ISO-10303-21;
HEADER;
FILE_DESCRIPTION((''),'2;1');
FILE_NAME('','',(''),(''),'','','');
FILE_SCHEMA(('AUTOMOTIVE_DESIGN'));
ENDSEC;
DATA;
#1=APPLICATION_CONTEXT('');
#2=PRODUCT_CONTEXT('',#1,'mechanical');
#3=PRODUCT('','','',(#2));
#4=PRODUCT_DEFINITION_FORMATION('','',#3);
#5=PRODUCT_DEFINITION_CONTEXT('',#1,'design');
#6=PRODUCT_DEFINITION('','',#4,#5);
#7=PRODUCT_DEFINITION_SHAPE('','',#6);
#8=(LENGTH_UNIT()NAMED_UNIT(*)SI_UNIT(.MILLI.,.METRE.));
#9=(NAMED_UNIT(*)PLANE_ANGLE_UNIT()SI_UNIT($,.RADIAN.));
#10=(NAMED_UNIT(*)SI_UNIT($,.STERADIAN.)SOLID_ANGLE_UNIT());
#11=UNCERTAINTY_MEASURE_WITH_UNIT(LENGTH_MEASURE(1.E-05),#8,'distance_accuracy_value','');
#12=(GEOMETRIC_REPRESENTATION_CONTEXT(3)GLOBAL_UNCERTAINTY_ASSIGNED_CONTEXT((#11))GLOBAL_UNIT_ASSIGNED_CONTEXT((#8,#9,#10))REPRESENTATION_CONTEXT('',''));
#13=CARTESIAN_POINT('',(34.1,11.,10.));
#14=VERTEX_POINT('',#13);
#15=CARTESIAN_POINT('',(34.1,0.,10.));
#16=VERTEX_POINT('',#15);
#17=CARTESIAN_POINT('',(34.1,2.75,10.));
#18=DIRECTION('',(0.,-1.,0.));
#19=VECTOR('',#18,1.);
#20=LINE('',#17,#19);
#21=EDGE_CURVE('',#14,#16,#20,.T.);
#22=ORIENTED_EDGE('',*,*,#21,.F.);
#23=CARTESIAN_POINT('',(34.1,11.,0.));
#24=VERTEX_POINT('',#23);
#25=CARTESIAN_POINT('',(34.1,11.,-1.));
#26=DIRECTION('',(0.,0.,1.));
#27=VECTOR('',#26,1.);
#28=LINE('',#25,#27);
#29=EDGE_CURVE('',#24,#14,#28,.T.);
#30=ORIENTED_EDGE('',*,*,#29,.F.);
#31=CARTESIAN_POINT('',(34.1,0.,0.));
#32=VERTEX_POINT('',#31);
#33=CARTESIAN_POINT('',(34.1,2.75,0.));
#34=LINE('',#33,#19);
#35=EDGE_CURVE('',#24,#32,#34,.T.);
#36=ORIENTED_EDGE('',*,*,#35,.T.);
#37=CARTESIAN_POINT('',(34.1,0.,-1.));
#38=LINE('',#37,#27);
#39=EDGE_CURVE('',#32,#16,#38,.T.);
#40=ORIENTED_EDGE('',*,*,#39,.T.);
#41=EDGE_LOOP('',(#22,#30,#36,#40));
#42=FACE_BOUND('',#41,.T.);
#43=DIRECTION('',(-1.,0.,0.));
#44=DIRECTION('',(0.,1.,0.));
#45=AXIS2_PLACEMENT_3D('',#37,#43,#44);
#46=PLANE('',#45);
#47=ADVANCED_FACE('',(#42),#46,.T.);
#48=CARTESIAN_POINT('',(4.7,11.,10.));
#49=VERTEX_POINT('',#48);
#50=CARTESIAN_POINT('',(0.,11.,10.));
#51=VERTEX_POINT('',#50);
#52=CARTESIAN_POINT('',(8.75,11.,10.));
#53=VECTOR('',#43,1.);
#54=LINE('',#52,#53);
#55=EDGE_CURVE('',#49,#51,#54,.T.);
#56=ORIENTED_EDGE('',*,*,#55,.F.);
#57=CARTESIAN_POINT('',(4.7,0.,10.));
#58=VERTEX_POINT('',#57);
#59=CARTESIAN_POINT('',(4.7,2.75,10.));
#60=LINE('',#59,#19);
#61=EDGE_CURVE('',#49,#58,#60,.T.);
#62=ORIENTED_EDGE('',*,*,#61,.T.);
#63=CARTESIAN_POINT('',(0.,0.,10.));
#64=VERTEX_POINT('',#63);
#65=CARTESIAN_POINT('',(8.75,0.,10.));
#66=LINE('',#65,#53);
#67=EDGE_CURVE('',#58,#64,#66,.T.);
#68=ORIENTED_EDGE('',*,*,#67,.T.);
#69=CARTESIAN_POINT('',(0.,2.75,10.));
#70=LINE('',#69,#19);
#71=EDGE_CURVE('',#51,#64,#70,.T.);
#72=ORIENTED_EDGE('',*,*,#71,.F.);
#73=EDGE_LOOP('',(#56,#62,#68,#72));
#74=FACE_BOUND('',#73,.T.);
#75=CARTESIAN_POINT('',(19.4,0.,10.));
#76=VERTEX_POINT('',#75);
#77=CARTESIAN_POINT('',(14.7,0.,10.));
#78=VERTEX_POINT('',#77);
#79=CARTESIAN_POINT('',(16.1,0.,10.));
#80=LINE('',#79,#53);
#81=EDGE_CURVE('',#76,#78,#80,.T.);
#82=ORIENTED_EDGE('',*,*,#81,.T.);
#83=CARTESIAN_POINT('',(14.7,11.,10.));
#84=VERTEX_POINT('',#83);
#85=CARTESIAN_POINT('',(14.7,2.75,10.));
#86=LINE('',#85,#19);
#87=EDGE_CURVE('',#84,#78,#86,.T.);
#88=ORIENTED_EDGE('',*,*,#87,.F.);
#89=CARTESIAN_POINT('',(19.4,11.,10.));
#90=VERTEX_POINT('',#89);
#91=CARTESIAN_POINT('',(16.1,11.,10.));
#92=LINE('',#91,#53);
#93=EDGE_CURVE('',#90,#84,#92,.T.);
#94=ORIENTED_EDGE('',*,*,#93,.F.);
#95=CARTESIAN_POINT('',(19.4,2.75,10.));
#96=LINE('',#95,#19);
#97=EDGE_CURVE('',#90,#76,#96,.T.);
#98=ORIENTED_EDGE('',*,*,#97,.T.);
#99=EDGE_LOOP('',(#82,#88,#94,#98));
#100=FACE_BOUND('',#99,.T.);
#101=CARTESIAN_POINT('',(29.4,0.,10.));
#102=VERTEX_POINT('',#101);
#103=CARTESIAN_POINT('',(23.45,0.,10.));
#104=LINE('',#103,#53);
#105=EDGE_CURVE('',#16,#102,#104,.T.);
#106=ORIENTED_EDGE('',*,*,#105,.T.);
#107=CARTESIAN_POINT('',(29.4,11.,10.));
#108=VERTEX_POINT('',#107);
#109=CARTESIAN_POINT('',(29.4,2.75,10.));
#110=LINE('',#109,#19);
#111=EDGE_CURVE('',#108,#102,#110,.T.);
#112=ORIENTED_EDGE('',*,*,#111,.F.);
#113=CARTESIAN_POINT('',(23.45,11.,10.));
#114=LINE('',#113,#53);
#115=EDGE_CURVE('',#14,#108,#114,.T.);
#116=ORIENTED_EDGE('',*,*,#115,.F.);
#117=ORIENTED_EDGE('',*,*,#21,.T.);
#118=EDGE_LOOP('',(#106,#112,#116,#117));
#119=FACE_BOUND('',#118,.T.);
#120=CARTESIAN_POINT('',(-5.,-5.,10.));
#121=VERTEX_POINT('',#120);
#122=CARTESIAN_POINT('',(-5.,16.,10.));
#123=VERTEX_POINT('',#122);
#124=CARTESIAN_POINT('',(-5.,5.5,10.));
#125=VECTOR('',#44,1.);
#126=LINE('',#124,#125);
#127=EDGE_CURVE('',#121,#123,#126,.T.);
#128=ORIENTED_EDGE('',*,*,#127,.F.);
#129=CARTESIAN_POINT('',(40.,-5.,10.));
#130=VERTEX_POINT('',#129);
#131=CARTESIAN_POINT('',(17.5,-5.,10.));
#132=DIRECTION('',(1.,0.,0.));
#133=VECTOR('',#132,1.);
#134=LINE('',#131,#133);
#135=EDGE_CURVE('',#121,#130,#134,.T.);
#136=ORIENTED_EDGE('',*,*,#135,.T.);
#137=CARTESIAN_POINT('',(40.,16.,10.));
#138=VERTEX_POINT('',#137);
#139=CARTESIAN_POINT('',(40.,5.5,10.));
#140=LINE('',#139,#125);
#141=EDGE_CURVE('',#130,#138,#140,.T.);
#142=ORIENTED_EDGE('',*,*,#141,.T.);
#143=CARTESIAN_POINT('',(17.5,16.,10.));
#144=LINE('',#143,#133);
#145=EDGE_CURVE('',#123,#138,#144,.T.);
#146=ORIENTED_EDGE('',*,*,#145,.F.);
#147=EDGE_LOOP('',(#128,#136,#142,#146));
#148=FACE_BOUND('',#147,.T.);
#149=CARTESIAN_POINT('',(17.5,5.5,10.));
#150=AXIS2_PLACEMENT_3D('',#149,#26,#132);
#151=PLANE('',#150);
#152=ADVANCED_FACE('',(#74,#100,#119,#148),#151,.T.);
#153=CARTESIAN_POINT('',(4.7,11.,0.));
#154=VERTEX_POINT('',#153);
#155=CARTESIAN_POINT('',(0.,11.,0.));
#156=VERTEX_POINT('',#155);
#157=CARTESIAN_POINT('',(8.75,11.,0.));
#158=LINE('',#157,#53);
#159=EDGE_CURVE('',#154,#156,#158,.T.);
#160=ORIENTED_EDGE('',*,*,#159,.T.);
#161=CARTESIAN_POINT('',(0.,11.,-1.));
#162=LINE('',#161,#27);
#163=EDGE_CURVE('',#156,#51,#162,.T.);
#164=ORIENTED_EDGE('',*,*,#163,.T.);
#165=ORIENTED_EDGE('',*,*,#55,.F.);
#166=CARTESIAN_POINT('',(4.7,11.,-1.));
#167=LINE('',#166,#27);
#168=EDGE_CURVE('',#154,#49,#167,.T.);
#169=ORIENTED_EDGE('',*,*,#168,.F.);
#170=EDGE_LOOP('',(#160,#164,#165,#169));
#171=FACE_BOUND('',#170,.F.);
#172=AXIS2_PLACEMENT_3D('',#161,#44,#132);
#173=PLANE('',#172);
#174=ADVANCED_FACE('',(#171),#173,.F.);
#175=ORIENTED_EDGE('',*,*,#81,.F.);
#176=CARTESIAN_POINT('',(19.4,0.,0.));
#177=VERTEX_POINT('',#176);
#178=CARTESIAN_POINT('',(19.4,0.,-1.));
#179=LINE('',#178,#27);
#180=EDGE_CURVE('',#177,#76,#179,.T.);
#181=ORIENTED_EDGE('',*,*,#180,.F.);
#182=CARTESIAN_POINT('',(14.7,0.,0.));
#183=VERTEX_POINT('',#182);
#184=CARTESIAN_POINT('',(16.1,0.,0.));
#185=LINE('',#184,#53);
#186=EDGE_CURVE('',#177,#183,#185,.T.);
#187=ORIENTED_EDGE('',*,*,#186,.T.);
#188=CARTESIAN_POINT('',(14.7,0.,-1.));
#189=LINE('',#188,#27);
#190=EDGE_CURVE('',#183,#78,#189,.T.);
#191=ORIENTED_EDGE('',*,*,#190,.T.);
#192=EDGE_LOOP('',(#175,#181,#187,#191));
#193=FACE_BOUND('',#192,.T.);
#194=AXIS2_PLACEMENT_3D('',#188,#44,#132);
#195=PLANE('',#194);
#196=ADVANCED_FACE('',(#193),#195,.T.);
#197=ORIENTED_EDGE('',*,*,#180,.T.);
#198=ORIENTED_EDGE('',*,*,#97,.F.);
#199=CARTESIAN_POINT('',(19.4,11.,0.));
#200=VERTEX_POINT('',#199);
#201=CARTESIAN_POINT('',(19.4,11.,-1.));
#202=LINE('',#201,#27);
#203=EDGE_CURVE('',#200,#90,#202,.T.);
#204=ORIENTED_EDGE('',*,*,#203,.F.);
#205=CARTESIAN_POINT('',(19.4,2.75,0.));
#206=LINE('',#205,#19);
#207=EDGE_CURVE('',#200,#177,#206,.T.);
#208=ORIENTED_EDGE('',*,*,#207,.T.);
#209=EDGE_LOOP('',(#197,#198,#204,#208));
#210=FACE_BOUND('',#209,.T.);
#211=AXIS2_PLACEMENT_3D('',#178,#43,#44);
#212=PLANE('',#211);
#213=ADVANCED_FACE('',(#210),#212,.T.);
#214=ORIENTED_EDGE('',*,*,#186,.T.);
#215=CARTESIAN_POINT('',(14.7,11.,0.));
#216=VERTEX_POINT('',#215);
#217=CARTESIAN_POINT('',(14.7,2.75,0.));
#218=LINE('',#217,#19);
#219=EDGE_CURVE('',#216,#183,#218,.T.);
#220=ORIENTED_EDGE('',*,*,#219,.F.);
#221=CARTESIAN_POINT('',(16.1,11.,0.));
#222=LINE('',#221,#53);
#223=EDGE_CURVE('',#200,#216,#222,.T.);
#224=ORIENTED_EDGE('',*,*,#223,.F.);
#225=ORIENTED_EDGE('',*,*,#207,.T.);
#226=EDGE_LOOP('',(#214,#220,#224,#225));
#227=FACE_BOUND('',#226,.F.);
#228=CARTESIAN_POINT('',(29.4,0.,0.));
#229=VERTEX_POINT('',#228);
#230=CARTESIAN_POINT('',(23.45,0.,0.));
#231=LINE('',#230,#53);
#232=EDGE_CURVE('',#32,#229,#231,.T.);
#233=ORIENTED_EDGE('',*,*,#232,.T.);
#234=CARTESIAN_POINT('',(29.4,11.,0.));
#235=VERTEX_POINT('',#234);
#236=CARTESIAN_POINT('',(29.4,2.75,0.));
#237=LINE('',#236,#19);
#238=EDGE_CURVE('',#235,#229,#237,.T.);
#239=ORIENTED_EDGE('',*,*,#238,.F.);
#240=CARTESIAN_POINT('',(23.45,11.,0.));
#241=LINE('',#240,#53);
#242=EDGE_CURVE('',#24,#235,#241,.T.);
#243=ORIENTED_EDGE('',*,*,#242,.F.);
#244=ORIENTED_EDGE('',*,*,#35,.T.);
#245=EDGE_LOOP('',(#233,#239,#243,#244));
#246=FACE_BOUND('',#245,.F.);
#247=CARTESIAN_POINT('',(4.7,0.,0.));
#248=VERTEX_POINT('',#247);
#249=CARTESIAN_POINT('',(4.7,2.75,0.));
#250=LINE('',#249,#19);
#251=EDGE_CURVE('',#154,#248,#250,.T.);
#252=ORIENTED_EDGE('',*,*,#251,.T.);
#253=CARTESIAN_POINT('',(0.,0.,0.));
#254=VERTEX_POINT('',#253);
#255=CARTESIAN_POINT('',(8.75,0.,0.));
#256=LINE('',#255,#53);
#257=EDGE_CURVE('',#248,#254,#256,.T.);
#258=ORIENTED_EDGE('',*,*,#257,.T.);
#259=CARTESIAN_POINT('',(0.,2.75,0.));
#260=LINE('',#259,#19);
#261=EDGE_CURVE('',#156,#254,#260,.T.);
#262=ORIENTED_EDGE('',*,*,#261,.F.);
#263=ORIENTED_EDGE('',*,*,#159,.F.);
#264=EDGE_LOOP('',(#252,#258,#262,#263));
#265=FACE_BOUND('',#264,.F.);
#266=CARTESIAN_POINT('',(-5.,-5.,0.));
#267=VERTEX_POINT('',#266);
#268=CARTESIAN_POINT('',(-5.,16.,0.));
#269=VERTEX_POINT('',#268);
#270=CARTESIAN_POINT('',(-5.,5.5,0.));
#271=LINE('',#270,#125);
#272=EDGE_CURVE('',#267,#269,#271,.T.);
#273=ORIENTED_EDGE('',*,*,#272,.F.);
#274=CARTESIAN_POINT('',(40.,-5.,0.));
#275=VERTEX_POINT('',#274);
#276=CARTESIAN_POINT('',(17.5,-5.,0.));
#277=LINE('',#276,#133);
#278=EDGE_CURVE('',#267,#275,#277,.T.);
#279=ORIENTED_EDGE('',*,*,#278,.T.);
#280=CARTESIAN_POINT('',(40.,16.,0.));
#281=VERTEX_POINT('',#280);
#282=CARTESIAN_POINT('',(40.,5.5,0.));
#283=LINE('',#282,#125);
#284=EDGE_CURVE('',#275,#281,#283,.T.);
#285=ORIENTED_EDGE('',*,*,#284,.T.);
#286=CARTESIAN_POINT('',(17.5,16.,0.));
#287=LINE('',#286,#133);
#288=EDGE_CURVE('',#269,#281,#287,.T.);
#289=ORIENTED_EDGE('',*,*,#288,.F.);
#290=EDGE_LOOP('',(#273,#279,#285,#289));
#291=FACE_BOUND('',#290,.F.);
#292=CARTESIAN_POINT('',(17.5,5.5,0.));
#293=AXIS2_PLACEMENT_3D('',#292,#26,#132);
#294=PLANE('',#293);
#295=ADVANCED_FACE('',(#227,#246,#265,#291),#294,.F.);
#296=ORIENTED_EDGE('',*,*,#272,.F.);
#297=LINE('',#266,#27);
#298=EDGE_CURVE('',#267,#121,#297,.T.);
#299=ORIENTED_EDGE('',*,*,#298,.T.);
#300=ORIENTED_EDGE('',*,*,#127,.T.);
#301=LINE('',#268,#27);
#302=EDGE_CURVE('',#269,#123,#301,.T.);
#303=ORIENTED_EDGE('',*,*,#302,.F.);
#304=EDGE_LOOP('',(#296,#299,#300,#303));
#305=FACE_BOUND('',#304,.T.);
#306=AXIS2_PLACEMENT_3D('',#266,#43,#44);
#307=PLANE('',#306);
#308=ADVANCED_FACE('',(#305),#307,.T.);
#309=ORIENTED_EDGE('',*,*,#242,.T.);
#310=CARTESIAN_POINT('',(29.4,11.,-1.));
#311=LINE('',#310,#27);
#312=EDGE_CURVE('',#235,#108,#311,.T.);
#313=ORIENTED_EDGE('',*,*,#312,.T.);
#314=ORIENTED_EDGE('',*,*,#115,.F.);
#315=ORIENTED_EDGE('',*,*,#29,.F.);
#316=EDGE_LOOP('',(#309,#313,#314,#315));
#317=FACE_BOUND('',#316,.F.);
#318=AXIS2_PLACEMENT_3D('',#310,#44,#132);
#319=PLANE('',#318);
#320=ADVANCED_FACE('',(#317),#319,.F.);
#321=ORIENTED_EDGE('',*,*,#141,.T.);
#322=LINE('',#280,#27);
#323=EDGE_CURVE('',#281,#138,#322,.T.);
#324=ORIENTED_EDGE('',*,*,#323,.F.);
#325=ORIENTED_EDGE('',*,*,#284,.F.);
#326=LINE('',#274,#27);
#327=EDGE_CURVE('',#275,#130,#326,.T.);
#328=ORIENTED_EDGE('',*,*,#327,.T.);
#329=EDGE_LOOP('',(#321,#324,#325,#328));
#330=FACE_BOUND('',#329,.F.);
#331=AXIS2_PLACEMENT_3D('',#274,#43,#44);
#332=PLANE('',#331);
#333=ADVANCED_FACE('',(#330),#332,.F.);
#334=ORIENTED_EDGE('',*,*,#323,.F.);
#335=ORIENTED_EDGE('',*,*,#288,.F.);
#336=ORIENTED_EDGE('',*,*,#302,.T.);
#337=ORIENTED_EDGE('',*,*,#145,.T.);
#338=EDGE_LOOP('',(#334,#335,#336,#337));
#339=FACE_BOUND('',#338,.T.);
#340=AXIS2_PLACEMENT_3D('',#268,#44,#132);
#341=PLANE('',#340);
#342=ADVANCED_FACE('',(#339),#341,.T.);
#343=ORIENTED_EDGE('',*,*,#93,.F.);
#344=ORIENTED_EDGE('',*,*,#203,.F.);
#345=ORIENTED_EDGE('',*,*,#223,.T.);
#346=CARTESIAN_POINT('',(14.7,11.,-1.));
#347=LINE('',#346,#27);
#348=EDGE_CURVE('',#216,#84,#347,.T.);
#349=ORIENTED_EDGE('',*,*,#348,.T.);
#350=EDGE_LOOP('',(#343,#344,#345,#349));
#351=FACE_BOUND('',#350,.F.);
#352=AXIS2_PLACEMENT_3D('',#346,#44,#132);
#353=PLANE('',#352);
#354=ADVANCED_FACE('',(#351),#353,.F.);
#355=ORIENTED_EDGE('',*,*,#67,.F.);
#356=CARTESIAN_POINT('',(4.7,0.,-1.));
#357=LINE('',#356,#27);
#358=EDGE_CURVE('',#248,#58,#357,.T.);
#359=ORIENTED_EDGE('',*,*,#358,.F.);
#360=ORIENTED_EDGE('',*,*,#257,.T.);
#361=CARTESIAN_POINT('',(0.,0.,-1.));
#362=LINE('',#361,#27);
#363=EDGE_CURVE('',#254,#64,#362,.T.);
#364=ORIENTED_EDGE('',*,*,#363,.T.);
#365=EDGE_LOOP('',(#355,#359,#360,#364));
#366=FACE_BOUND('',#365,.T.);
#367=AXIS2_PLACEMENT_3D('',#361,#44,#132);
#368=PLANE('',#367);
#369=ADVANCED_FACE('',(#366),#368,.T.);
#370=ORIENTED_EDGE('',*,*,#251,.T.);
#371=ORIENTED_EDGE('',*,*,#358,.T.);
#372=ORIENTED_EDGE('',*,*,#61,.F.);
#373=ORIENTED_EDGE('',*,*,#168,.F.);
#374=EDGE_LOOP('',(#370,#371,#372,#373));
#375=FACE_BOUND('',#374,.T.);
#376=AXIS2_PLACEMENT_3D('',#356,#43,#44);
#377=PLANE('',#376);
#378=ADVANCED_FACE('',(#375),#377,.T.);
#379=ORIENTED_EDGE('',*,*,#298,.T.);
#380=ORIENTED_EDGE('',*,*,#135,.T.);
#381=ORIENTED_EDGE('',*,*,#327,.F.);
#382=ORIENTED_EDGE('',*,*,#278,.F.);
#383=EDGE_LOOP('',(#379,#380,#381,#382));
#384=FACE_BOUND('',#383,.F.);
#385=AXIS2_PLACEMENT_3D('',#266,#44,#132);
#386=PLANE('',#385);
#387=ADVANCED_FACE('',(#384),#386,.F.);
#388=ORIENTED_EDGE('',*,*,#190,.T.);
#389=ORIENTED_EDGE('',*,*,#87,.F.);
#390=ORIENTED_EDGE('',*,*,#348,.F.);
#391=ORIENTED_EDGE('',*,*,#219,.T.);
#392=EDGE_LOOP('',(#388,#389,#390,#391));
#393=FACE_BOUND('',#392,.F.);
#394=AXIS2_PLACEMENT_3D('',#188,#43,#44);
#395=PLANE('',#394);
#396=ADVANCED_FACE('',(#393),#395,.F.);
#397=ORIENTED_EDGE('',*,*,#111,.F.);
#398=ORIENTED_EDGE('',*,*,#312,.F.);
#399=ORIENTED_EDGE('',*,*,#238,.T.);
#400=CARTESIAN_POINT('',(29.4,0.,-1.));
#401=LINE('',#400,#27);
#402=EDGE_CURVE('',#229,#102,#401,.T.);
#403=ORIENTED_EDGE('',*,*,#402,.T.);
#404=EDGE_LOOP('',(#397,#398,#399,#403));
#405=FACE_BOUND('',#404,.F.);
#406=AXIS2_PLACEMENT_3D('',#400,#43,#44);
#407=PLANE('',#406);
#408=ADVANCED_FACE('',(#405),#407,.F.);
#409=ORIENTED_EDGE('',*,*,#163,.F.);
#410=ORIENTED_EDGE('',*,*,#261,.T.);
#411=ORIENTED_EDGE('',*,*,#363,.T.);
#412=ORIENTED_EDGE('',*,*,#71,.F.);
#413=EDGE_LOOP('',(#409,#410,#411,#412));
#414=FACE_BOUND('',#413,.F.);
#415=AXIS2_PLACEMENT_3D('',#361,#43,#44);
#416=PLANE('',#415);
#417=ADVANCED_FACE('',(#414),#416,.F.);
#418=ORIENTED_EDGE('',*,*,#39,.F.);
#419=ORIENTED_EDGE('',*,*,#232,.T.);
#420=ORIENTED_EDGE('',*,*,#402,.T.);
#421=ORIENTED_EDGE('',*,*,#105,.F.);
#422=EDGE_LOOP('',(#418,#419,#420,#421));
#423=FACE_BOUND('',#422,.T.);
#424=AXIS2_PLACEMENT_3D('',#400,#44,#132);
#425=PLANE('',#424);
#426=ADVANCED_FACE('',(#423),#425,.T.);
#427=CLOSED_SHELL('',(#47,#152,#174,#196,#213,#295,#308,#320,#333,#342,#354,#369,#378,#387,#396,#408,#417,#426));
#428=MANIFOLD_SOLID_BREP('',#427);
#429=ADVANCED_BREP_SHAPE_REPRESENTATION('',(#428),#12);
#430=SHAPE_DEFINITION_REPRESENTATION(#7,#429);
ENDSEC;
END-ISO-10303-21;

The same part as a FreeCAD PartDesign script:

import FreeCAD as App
import Part
import Sketcher

doc = App.newDocument("Part")
body = doc.addObject("PartDesign::Body", "Body")

sketch1 = body.newObject("Sketcher::SketchObject", "Sketch")
sketch1.AttachmentSupport = (doc.getObject("XY_Plane"), [""])
sketch1.MapMode = "FlatFace"
sketch1.AttachmentOffset = App.Placement(App.Vector(0, 0, -1), App.Rotation())
sketch1.addGeometry([
    Part.LineSegment(App.Vector(0, 11, 0), App.Vector(0, 0, 0)),
    Part.LineSegment(App.Vector(0, 0, 0), App.Vector(4.7, 0, 0)),
    Part.LineSegment(App.Vector(4.7, 0, 0), App.Vector(4.7, 11, 0)),
    Part.LineSegment(App.Vector(4.7, 11, 0), App.Vector(0, 11, 0)),
], False)
sketch1.addConstraint([
    Sketcher.Constraint("Coincident", 0, 2, 1, 1),
    Sketcher.Constraint("Coincident", 1, 2, 2, 1),
    Sketcher.Constraint("Coincident", 2, 2, 3, 1),
    Sketcher.Constraint("Coincident", 3, 2, 0, 1),
    Sketcher.Constraint("Vertical", 0),
    Sketcher.Constraint("Horizontal", 1),
    Sketcher.Constraint("Vertical", 2),
    Sketcher.Constraint("Horizontal", 3),
    Sketcher.Constraint("Coincident", 0, 2, -1, 1),
    Sketcher.Constraint("DistanceY", 0, 2, 0, 1, 11.0),
    Sketcher.Constraint("DistanceX", 1, 1, 1, 2, 4.7),
])
pad1 = body.newObject("PartDesign::Pad", "Pad")
pad1.Profile = sketch1
pad1.Length = 13
body2 = doc.addObject("PartDesign::Body", "Body001")

sketch2 = body2.newObject("Sketcher::SketchObject", "Sketch001")
sketch2.AttachmentSupport = (doc.getObject("XY_Plane001"), [""])
sketch2.MapMode = "FlatFace"
sketch2.AttachmentOffset = App.Placement(App.Vector(0, 0, -1), App.Rotation())
sketch2.addGeometry([
    Part.LineSegment(App.Vector(14.7, 11, 0), App.Vector(14.7, 0, 0)),
    Part.LineSegment(App.Vector(14.7, 0, 0), App.Vector(19.4, 0, 0)),
    Part.LineSegment(App.Vector(19.4, 0, 0), App.Vector(19.4, 11, 0)),
    Part.LineSegment(App.Vector(19.4, 11, 0), App.Vector(14.7, 11, 0)),
], False)
sketch2.addConstraint([
    Sketcher.Constraint("Coincident", 0, 2, 1, 1),
    Sketcher.Constraint("Coincident", 1, 2, 2, 1),
    Sketcher.Constraint("Coincident", 2, 2, 3, 1),
    Sketcher.Constraint("Coincident", 3, 2, 0, 1),
    Sketcher.Constraint("Vertical", 0),
    Sketcher.Constraint("Horizontal", 1),
    Sketcher.Constraint("Vertical", 2),
    Sketcher.Constraint("Horizontal", 3),
    Sketcher.Constraint("PointOnObject", 0, 2, -1),
    Sketcher.Constraint("DistanceY", 0, 2, 0, 1, 11.0),
    Sketcher.Constraint("DistanceX", 1, 1, 1, 2, 4.7),
    Sketcher.Constraint("DistanceX", -1, 1, 0, 2, 14.7),
])
pad2 = body2.newObject("PartDesign::Pad", "Pad001")
pad2.Profile = sketch2
pad2.Length = 13
body3 = doc.addObject("PartDesign::Body", "Body002")

sketch3 = body3.newObject("Sketcher::SketchObject", "Sketch002")
sketch3.AttachmentSupport = (doc.getObject("XY_Plane002"), [""])
sketch3.MapMode = "FlatFace"
sketch3.AttachmentOffset = App.Placement(App.Vector(0, 0, -1), App.Rotation())
sketch3.addGeometry([
    Part.LineSegment(App.Vector(29.4, 11, 0), App.Vector(29.4, 0, 0)),
    Part.LineSegment(App.Vector(29.4, 0, 0), App.Vector(34.1, 0, 0)),
    Part.LineSegment(App.Vector(34.1, 0, 0), App.Vector(34.1, 11, 0)),
    Part.LineSegment(App.Vector(34.1, 11, 0), App.Vector(29.4, 11, 0)),
], False)
sketch3.addConstraint([
    Sketcher.Constraint("Coincident", 0, 2, 1, 1),
    Sketcher.Constraint("Coincident", 1, 2, 2, 1),
    Sketcher.Constraint("Coincident", 2, 2, 3, 1),
    Sketcher.Constraint("Coincident", 3, 2, 0, 1),
    Sketcher.Constraint("Vertical", 0),
    Sketcher.Constraint("Horizontal", 1),
    Sketcher.Constraint("Vertical", 2),
    Sketcher.Constraint("Horizontal", 3),
    Sketcher.Constraint("PointOnObject", 0, 2, -1),
    Sketcher.Constraint("DistanceY", 0, 2, 0, 1, 11.0),
    Sketcher.Constraint("DistanceX", 1, 1, 1, 2, 4.7),
    Sketcher.Constraint("DistanceX", -1, 1, 0, 2, 29.4),
])
pad3 = body3.newObject("PartDesign::Pad", "Pad002")
pad3.Profile = sketch3
pad3.Length = 13
body4 = doc.addObject("PartDesign::Body", "Body003")

sketch4 = body4.newObject("Sketcher::SketchObject", "Sketch003")
sketch4.AttachmentSupport = (doc.getObject("XY_Plane003"), [""])
sketch4.MapMode = "FlatFace"
sketch4.addGeometry([
    Part.LineSegment(App.Vector(-5, 16, 0), App.Vector(-5, -5, 0)),
    Part.LineSegment(App.Vector(-5, -5, 0), App.Vector(40, -5, 0)),
    Part.LineSegment(App.Vector(40, -5, 0), App.Vector(40, 16, 0)),
    Part.LineSegment(App.Vector(40, 16, 0), App.Vector(-5, 16, 0)),
], False)
sketch4.addConstraint([
    Sketcher.Constraint("Coincident", 0, 2, 1, 1),
    Sketcher.Constraint("Coincident", 1, 2, 2, 1),
    Sketcher.Constraint("Coincident", 2, 2, 3, 1),
    Sketcher.Constraint("Coincident", 3, 2, 0, 1),
    Sketcher.Constraint("Vertical", 0),
    Sketcher.Constraint("Horizontal", 1),
    Sketcher.Constraint("Vertical", 2),
    Sketcher.Constraint("Horizontal", 3),
    Sketcher.Constraint("DistanceX", 1, 1, 1, 2, 45.0),
    Sketcher.Constraint("DistanceY", 0, 2, 0, 1, 21.0),
    Sketcher.Constraint("DistanceX", 0, 2, -1, 1, 5.0),
    Sketcher.Constraint("DistanceY", 0, 2, -1, 1, 5.0),
])
pad4 = body4.newObject("PartDesign::Pad", "Pad003")
pad4.Profile = sketch4
pad4.Length = 10
doc.recompute()

boolean = body4.newObject("PartDesign::Boolean", "Boolean")
boolean.Type = "Cut"
boolean.addObjects([body3])
doc.recompute()

boolean2 = body4.newObject("PartDesign::Boolean", "Boolean001")
boolean2.Type = "Cut"
boolean2.addObjects([body2])
doc.recompute()

boolean3 = body4.newObject("PartDesign::Boolean", "Boolean002")
boolean3.Type = "Cut"
boolean3.addObjects([body])

doc.recompute()
